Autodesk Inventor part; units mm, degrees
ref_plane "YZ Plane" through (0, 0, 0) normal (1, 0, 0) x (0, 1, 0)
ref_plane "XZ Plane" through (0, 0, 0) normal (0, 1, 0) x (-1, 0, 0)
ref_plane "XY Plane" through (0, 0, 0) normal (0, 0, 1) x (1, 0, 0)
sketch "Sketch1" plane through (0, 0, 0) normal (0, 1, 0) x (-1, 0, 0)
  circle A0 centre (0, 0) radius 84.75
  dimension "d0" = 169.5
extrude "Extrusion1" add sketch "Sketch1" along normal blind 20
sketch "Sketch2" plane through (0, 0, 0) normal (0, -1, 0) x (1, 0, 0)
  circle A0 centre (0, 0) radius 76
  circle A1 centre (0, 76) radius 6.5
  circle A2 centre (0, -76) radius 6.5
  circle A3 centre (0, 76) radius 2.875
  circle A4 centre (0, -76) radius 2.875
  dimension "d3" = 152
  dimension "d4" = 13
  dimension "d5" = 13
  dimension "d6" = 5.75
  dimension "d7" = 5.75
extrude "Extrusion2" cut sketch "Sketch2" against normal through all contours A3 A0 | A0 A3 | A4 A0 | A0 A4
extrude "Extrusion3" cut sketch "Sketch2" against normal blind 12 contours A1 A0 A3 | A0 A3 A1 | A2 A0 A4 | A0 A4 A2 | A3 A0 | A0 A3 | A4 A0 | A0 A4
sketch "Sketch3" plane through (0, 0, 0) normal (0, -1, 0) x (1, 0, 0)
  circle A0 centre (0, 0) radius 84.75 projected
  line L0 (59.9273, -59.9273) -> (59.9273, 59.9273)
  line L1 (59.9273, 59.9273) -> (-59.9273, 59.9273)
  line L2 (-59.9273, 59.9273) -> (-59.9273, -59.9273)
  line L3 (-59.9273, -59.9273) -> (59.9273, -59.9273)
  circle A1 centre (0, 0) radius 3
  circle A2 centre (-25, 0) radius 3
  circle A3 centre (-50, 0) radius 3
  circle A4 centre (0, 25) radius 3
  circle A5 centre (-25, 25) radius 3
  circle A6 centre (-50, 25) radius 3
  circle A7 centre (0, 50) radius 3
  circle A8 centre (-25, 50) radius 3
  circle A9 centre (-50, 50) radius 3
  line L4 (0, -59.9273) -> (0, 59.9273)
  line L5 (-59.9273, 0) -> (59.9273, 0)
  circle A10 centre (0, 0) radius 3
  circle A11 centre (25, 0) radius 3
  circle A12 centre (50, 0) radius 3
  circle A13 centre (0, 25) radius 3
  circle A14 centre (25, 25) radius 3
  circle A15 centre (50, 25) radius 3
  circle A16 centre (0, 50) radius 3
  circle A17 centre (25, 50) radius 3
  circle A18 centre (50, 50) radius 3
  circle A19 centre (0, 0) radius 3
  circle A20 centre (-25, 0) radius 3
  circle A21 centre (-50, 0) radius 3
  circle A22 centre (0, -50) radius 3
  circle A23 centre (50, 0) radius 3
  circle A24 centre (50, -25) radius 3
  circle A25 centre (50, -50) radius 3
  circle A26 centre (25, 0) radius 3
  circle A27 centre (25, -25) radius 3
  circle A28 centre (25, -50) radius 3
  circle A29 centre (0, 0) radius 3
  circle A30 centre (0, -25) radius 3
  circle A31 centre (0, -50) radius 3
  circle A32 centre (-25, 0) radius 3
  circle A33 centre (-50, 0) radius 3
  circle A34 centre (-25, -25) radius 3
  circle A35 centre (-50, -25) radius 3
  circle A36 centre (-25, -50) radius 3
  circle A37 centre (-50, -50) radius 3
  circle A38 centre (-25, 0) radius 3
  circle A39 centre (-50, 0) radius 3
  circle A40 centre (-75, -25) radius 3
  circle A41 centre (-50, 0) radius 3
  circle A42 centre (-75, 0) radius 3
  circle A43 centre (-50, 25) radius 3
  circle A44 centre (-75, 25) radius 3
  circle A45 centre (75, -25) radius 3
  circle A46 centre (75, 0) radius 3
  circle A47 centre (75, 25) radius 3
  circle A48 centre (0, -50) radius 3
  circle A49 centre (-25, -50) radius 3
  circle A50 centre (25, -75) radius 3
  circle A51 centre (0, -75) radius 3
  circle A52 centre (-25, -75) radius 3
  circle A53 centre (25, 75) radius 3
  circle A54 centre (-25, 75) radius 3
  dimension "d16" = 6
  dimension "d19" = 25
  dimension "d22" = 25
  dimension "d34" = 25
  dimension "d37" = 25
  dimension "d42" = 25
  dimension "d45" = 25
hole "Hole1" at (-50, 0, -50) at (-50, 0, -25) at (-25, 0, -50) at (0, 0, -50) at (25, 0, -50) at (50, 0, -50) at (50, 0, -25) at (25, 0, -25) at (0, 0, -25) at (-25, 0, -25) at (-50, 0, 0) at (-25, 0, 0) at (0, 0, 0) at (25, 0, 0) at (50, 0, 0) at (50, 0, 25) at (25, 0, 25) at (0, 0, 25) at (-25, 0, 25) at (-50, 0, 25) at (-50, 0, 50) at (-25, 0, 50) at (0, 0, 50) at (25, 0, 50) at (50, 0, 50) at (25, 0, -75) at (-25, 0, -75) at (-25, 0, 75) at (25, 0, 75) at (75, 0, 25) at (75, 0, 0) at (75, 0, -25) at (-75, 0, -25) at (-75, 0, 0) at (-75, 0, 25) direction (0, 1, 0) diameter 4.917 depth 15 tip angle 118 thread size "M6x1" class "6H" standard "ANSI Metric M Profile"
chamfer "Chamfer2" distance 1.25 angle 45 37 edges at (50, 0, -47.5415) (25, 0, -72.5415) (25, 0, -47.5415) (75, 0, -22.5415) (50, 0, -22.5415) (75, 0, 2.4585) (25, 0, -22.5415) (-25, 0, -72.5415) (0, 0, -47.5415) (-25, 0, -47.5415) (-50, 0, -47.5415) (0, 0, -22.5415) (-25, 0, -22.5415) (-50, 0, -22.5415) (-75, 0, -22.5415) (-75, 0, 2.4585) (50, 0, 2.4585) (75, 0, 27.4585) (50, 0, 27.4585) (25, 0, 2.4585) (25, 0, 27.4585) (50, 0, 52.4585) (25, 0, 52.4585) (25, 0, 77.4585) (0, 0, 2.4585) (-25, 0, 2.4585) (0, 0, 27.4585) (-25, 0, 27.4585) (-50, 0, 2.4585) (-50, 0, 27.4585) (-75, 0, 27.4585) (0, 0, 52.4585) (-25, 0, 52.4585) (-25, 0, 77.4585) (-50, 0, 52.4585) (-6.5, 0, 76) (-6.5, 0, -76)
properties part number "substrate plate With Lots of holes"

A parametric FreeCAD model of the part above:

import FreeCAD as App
import Part
import Sketcher
from FreeCAD import Vector
Q = App.Units.Quantity


def edges_at(feature, points):
    """Names of the edges that pass closest to the given points."""
    edges = feature.Shape.Edges
    near = lambda p: min(range(len(edges)), key=lambda i: edges[i].distToShape(Part.Vertex(*p))[0])
    return sorted({f"Edge{near(p) + 1}" for p in points})

doc = App.newDocument("Part")
body = doc.addObject("PartDesign::Body", "Body")

# Sketch on XZ plane
sketch1 = body.newObject("Sketcher::SketchObject", "Sketch")
sketch1.AttachmentSupport = (doc.getObject("XZ_Plane"), [""])
sketch1.MapMode = "FlatFace"
sketch1.addGeometry(Part.Circle(Vector(0, 0, 0), Vector(0, 0, 1), 84.75), False)
sketch1.addConstraint(Sketcher.Constraint("Coincident", 0, 3, -1, 1))
sketch1.addConstraint(Sketcher.Constraint("Diameter", 0, Q("169.5 mm")))
pad1 = body.newObject("PartDesign::Pad", "Pad")
pad1.Profile = sketch1
pad1.Length = 20
pad1.Reversed = True

# Sketch on XZ plane
sketch2 = body.newObject("Sketcher::SketchObject", "Sketch001")
sketch2.AttachmentSupport = (doc.getObject("XZ_Plane"), [""])
sketch2.MapMode = "FlatFace"
sketch2.addGeometry(Part.Circle(Vector(0, 76, 0), Vector(0, 0, 1), 2.875), False)
sketch2.addGeometry(Part.Circle(Vector(0, -76, 0), Vector(0, 0, 1), 2.875), False)
sketch2.addConstraint(Sketcher.Constraint("Equal", 0, 1))
sketch2.addConstraint(Sketcher.Constraint("Symmetric", 0, 3, 1, 3, -1, 1))
sketch2.addConstraint(Sketcher.Constraint("PointOnObject", 0, 3, -2))
sketch2.addConstraint(Sketcher.Constraint("Diameter", 0, Q("5.75 mm")))
sketch2.addConstraint(Sketcher.Constraint("DistanceY", 1, 3, 0, 3, Q("152 mm")))
pocket1 = body.newObject("PartDesign::Pocket", "Pocket")
pocket1.Profile = sketch2
pocket1.Type = "ThroughAll"

# Sketch on XZ plane
sketch3 = body.newObject("Sketcher::SketchObject", "Sketch002")
sketch3.AttachmentSupport = (doc.getObject("XZ_Plane"), [""])
sketch3.MapMode = "FlatFace"
sketch3.addGeometry(Part.Circle(Vector(0, 76, 0), Vector(0, 0, 1), 6.5), False)
sketch3.addGeometry(Part.Circle(Vector(0, -76, 0), Vector(0, 0, 1), 6.5), False)
sketch3.addConstraint(Sketcher.Constraint("Equal", 0, 1))
sketch3.addConstraint(Sketcher.Constraint("Symmetric", 0, 3, 1, 3, -1, 1))
sketch3.addConstraint(Sketcher.Constraint("PointOnObject", 0, 3, -2))
sketch3.addConstraint(Sketcher.Constraint("Diameter", 0, Q("13 mm")))
sketch3.addConstraint(Sketcher.Constraint("DistanceY", 1, 3, 0, 3, Q("152 mm")))
pocket2 = body.newObject("PartDesign::Pocket", "Pocket001")
pocket2.Profile = sketch3
pocket2.Length = 12

# Sketch on XZ plane
sketch4 = body.newObject("Sketcher::SketchObject", "Sketch003")
sketch4.AttachmentSupport = (doc.getObject("XZ_Plane"), [""])
sketch4.MapMode = "FlatFace"
sketch4.addGeometry(Part.Circle(Vector(-50, -50, 0), Vector(0, 0, 1), 2.4585), False)
sketch4.addGeometry(Part.Circle(Vector(-50, -25, 0), Vector(0, 0, 1), 2.4585), False)
sketch4.addGeometry(Part.Circle(Vector(-25, -50, 0), Vector(0, 0, 1), 2.4585), False)
sketch4.addGeometry(Part.Circle(Vector(0, -50, 0), Vector(0, 0, 1), 2.4585), False)
sketch4.addGeometry(Part.Circle(Vector(25, -50, 0), Vector(0, 0, 1), 2.4585), False)
sketch4.addGeometry(Part.Circle(Vector(50, -50, 0), Vector(0, 0, 1), 2.4585), False)
sketch4.addGeometry(Part.Circle(Vector(50, -25, 0), Vector(0, 0, 1), 2.4585), False)
sketch4.addGeometry(Part.Circle(Vector(25, -25, 0), Vector(0, 0, 1), 2.4585), False)
sketch4.addGeometry(Part.Circle(Vector(0, -25, 0), Vector(0, 0, 1), 2.4585), False)
sketch4.addGeometry(Part.Circle(Vector(-25, -25, 0), Vector(0, 0, 1), 2.4585), False)
sketch4.addGeometry(Part.Circle(Vector(-50, 0, 0), Vector(0, 0, 1), 2.4585), False)
sketch4.addGeometry(Part.Circle(Vector(-25, 0, 0), Vector(0, 0, 1), 2.4585), False)
sketch4.addGeometry(Part.Circle(Vector(0, 0, 0), Vector(0, 0, 1), 2.4585), False)
sketch4.addGeometry(Part.Circle(Vector(25, 0, 0), Vector(0, 0, 1), 2.4585), False)
sketch4.addGeometry(Part.Circle(Vector(50, 0, 0), Vector(0, 0, 1), 2.4585), False)
sketch4.addGeometry(Part.Circle(Vector(50, 25, 0), Vector(0, 0, 1), 2.4585), False)
sketch4.addGeometry(Part.Circle(Vector(25, 25, 0), Vector(0, 0, 1), 2.4585), False)
sketch4.addGeometry(Part.Circle(Vector(0, 25, 0), Vector(0, 0, 1), 2.4585), False)
sketch4.addGeometry(Part.Circle(Vector(-25, 25, 0), Vector(0, 0, 1), 2.4585), False)
sketch4.addGeometry(Part.Circle(Vector(-50, 25, 0), Vector(0, 0, 1), 2.4585), False)
sketch4.addGeometry(Part.Circle(Vector(-50, 50, 0), Vector(0, 0, 1), 2.4585), False)
sketch4.addGeometry(Part.Circle(Vector(-25, 50, 0), Vector(0, 0, 1), 2.4585), False)
sketch4.addGeometry(Part.Circle(Vector(0, 50, 0), Vector(0, 0, 1), 2.4585), False)
sketch4.addGeometry(Part.Circle(Vector(25, 50, 0), Vector(0, 0, 1), 2.4585), False)
sketch4.addGeometry(Part.Circle(Vector(50, 50, 0), Vector(0, 0, 1), 2.4585), False)
sketch4.addGeometry(Part.Circle(Vector(25, -75, 0), Vector(0, 0, 1), 2.4585), False)
sketch4.addGeometry(Part.Circle(Vector(-25, -75, 0), Vector(0, 0, 1), 2.4585), False)
sketch4.addGeometry(Part.Circle(Vector(-25, 75, 0), Vector(0, 0, 1), 2.4585), False)
sketch4.addGeometry(Part.Circle(Vector(25, 75, 0), Vector(0, 0, 1), 2.4585), False)
sketch4.addGeometry(Part.Circle(Vector(75, 25, 0), Vector(0, 0, 1), 2.4585), False)
sketch4.addGeometry(Part.Circle(Vector(75, 0, 0), Vector(0, 0, 1), 2.4585), False)
sketch4.addGeometry(Part.Circle(Vector(75, -25, 0), Vector(0, 0, 1), 2.4585), False)
sketch4.addGeometry(Part.Circle(Vector(-75, -25, 0), Vector(0, 0, 1), 2.4585), False)
sketch4.addGeometry(Part.Circle(Vector(-75, 0, 0), Vector(0, 0, 1), 2.4585), False)
sketch4.addGeometry(Part.Circle(Vector(-75, 25, 0), Vector(0, 0, 1), 2.4585), False)
sketch4.addConstraint(Sketcher.Constraint("Coincident", 12, 3, -1, 1))
sketch4.addConstraint(Sketcher.Constraint("Equal", 0, 1))
sketch4.addConstraint(Sketcher.Constraint("Equal", 1, 2))
sketch4.addConstraint(Sketcher.Constraint("Equal", 2, 3))
sketch4.addConstraint(Sketcher.Constraint("Equal", 3, 4))
sketch4.addConstraint(Sketcher.Constraint("Equal", 4, 5))
sketch4.addConstraint(Sketcher.Constraint("Equal", 5, 6))
sketch4.addConstraint(Sketcher.Constraint("Equal", 6, 7))
sketch4.addConstraint(Sketcher.Constraint("Equal", 7, 8))
sketch4.addConstraint(Sketcher.Constraint("Equal", 8, 9))
sketch4.addConstraint(Sketcher.Constraint("Equal", 9, 10))
sketch4.addConstraint(Sketcher.Constraint("Equal", 10, 11))
sketch4.addConstraint(Sketcher.Constraint("Equal", 11, 12))
sketch4.addConstraint(Sketcher.Constraint("Equal", 12, 13))
sketch4.addConstraint(Sketcher.Constraint("Equal", 13, 14))
sketch4.addConstraint(Sketcher.Constraint("Equal", 14, 15))
sketch4.addConstraint(Sketcher.Constraint("Equal", 15, 16))
sketch4.addConstraint(Sketcher.Constraint("Equal", 16, 17))
sketch4.addConstraint(Sketcher.Constraint("Equal", 17, 18))
sketch4.addConstraint(Sketcher.Constraint("Equal", 18, 19))
sketch4.addConstraint(Sketcher.Constraint("Equal", 19, 20))
sketch4.addConstraint(Sketcher.Constraint("Equal", 20, 21))
sketch4.addConstraint(Sketcher.Constraint("Equal", 21, 22))
sketch4.addConstraint(Sketcher.Constraint("Equal", 22, 23))
sketch4.addConstraint(Sketcher.Constraint("Equal", 23, 24))
sketch4.addConstraint(Sketcher.Constraint("Equal", 24, 25))
sketch4.addConstraint(Sketcher.Constraint("Equal", 25, 26))
sketch4.addConstraint(Sketcher.Constraint("Equal", 26, 27))
sketch4.addConstraint(Sketcher.Constraint("Equal", 27, 28))
sketch4.addConstraint(Sketcher.Constraint("Equal", 28, 29))
sketch4.addConstraint(Sketcher.Constraint("Equal", 29, 30))
sketch4.addConstraint(Sketcher.Constraint("Equal", 30, 31))
sketch4.addConstraint(Sketcher.Constraint("Equal", 31, 32))
sketch4.addConstraint(Sketcher.Constraint("Equal", 32, 33))
sketch4.addConstraint(Sketcher.Constraint("Equal", 33, 34))
sketch4.addConstraint(Sketcher.Constraint("Symmetric", 11, 3, 13, 3, -1, 1))
sketch4.addConstraint(Sketcher.Constraint("Symmetric", 10, 3, 14, 3, -1, 1))
sketch4.addConstraint(Sketcher.Constraint("Symmetric", 1, 3, 15, 3, -1, 1))
sketch4.addConstraint(Sketcher.Constraint("Symmetric", 9, 3, 16, 3, -1, 1))
sketch4.addConstraint(Sketcher.Constraint("Symmetric", 8, 3, 17, 3, -1, 1))
sketch4.addConstraint(Sketcher.Constraint("Symmetric", 7, 3, 18, 3, -1, 1))
sketch4.addConstraint(Sketcher.Constraint("Symmetric", 6, 3, 19, 3, -1, 1))
sketch4.addConstraint(Sketcher.Constraint("Symmetric", 5, 3, 20, 3, -1, 1))
sketch4.addConstraint(Sketcher.Constraint("Symmetric", 4, 3, 21, 3, -1, 1))
sketch4.addConstraint(Sketcher.Constraint("Symmetric", 3, 3, 22, 3, -1, 1))
sketch4.addConstraint(Sketcher.Constraint("Symmetric", 2, 3, 23, 3, -1, 1))
sketch4.addConstraint(Sketcher.Constraint("Symmetric", 0, 3, 24, 3, -1, 1))
sketch4.addConstraint(Sketcher.Constraint("Symmetric", 25, 3, 27, 3, -1, 1))
sketch4.addConstraint(Sketcher.Constraint("Symmetric", 26, 3, 28, 3, -1, 1))
sketch4.addConstraint(Sketcher.Constraint("Symmetric", 29, 3, 32, 3, -1, 1))
sketch4.addConstraint(Sketcher.Constraint("Symmetric", 30, 3, 33, 3, -1, 1))
sketch4.addConstraint(Sketcher.Constraint("Symmetric", 31, 3, 34, 3, -1, 1))
sketch4.addConstraint(Sketcher.Constraint("Symmetric", 2, 3, 4, 3, -2))
sketch4.addConstraint(Sketcher.Constraint("Symmetric", 0, 3, 5, 3, -2))
sketch4.addConstraint(Sketcher.Constraint("Symmetric", 1, 3, 6, 3, -2))
sketch4.addConstraint(Sketcher.Constraint("Symmetric", 7, 3, 9, 3, -2))
sketch4.addConstraint(Sketcher.Constraint("Symmetric", 25, 3, 26, 3, -2))
sketch4.addConstraint(Sketcher.Constraint("Symmetric", 31, 3, 32, 3, -2))
sketch4.addConstraint(Sketcher.Constraint("PointOnObject", 3, 3, -2))
sketch4.addConstraint(Sketcher.Constraint("PointOnObject", 8, 3, -2))
sketch4.addConstraint(Sketcher.Constraint("PointOnObject", 10, 3, -1))
sketch4.addConstraint(Sketcher.Constraint("PointOnObject", 11, 3, -1))
sketch4.addConstraint(Sketcher.Constraint("PointOnObject", 30, 3, -1))
sketch4.addConstraint(Sketcher.Constraint("Horizontal", 0, 3, 2, 3))
sketch4.addConstraint(Sketcher.Constraint("Horizontal", 2, 3, 3, 3))
sketch4.addConstraint(Sketcher.Constraint("Horizontal", 6, 3, 7, 3))
sketch4.addConstraint(Sketcher.Constraint("Horizontal", 7, 3, 8, 3))
sketch4.addConstraint(Sketcher.Constraint("Horizontal", 19, 3, 29, 3))
sketch4.addConstraint(Sketcher.Constraint("Vertical", 0, 3, 1, 3))
sketch4.addConstraint(Sketcher.Constraint("Vertical", 4, 3, 7, 3))
sketch4.addConstraint(Sketcher.Constraint("Vertical", 1, 3, 10, 3))
sketch4.addConstraint(Sketcher.Constraint("Vertical", 9, 3, 11, 3))
sketch4.addConstraint(Sketcher.Constraint("Vertical", 23, 3, 25, 3))
sketch4.addConstraint(Sketcher.Constraint("Vertical", 29, 3, 30, 3))
sketch4.addConstraint(Sketcher.Constraint("Diameter", 0, Q("4.917 mm")))
sketch4.addConstraint(Sketcher.Constraint("DistanceX", 0, 3, -1, 1, Q("50 mm")))
sketch4.addConstraint(Sketcher.Constraint("DistanceY", 0, 3, -1, 1, Q("50 mm")))
sketch4.addConstraint(Sketcher.Constraint("DistanceY", 1, 3, -1, 1, Q("25 mm")))
sketch4.addConstraint(Sketcher.Constraint("DistanceX", 2, 3, -1, 1, Q("25 mm")))
sketch4.addConstraint(Sketcher.Constraint("DistanceY", 25, 3, -1, 1, Q("75 mm")))
sketch4.addConstraint(Sketcher.Constraint("DistanceX", -1, 1, 29, 3, Q("75 mm")))
doc.recompute()
hole = body.newObject("PartDesign::Hole", "Hole")
hole.Profile = sketch4
hole.ThreadType = "None"
hole.Diameter = 4.917
hole.DepthType = "Dimension"
hole.Depth = 15
hole.DrillPoint = "Angled"
hole.DrillPointAngle = 118
doc.recompute()

chamfer = body.newObject("PartDesign::Chamfer", "Chamfer")
chamfer.Base = (hole, edges_at(hole, [
    (50, 0, -47.541),
    (25, 0, -72.541),
    (25, 0, -47.541),
    (75, 0, -22.541),
    (50, 0, -22.541),
    (75, 0, 2.458),
    (25, 0, -22.541),
    (-25, 0, -72.541),
    (0, 0, -47.541),
    (-25, 0, -47.541),
    (-50, 0, -47.541),
    (0, 0, -22.541),
    (-25, 0, -22.541),
    (-50, 0, -22.541),
    (-75, 0, -22.541),
    (-75, 0, 2.458),
    (50, 0, 2.458),
    (75, 0, 27.459),
    (50, 0, 27.459),
    (25, 0, 2.458),
    (25, 0, 27.459),
    (50, 0, 52.459),
    (25, 0, 52.459),
    (25, 0, 77.459),
    (0, 0, 2.458),
    (-25, 0, 2.458),
    (0, 0, 27.459),
    (-25, 0, 27.459),
    (-50, 0, 2.458),
    (-50, 0, 27.459),
    (-75, 0, 27.459),
    (0, 0, 52.459),
    (-25, 0, 52.459),
    (-25, 0, 77.459),
    (-50, 0, 52.459),
    (-6.5, 0, 76),
    (-6.5, 0, -76),
]))
chamfer.Size = 1.25

doc.recompute()
